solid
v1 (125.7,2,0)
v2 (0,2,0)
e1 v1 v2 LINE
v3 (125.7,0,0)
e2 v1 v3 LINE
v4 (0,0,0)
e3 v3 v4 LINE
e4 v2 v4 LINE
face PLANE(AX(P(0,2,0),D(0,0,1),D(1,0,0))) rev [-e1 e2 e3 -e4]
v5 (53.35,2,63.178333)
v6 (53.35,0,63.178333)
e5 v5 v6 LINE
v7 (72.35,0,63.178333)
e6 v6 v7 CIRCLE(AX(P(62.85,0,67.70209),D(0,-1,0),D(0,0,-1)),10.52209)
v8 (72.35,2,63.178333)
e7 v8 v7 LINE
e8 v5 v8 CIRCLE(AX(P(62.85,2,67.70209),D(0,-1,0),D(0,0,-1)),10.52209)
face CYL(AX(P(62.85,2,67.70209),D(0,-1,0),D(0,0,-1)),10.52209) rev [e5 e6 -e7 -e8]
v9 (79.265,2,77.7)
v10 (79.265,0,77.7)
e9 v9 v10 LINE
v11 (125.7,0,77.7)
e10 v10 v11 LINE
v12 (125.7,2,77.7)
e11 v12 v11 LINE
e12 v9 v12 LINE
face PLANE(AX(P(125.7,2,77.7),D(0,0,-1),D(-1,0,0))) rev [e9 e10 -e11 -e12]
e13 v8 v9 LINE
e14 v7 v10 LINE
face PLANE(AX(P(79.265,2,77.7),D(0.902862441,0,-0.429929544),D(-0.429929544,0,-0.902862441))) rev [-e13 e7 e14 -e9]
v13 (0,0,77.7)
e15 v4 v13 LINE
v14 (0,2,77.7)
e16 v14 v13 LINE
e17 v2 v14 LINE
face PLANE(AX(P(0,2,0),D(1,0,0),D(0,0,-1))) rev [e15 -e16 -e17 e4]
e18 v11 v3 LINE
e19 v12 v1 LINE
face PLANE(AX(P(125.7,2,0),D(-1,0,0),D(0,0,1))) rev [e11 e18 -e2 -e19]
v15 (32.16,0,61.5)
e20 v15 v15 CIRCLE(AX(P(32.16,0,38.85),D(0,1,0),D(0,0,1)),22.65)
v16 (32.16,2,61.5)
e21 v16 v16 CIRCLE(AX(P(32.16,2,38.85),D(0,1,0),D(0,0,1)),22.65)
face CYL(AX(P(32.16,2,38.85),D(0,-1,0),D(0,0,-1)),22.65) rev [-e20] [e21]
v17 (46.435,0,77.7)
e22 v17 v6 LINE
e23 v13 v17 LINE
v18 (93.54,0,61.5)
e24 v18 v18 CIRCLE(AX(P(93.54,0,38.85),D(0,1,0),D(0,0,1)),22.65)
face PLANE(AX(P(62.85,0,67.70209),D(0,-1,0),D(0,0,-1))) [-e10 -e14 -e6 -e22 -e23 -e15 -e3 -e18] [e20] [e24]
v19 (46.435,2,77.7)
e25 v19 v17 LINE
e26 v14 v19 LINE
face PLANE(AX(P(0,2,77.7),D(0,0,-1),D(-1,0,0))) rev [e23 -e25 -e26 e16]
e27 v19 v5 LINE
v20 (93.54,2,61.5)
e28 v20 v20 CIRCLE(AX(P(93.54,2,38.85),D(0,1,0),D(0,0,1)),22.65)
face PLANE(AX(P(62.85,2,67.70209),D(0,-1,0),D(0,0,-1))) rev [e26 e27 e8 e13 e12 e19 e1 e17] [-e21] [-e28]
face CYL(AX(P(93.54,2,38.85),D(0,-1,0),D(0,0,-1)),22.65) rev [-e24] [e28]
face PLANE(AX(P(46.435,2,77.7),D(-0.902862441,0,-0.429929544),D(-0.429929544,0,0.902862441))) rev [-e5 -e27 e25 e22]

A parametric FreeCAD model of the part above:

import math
import FreeCAD as App
import Part
import Sketcher
from FreeCAD import Vector
Q = App.Units.Quantity

doc = App.newDocument("Part")
params = doc.addObject("Spreadsheet::Sheet", "Params")
for row, (alias, value) in enumerate([
    ("sketch1_diameter", "45.3 mm"),
    ("sketch1_width", "125.7 mm"),
    ("sketch1_height", "77.7 mm"),
    ("pad1_length", "2 mm"),
], start=1):
    params.set(f"A{row}", alias)
    params.set(f"B{row}", "=" + value)
    params.setAlias(f"B{row}", alias)

body = doc.addObject("PartDesign::Body", "Body")

# Sketch on XZ plane
sketch1 = body.newObject("Sketcher::SketchObject", "Sketch")
sketch1.AttachmentSupport = (doc.getObject("XZ_Plane"), [""])
sketch1.MapMode = "FlatFace"
sketch1.addGeometry([
    Part.LineSegment(Vector(0, 78, 0), Vector(46, 78, 0)),  # 0
    Part.LineSegment(Vector(46, 78, 0), Vector(53, 63, 0)),  # 1
    Part.ArcOfCircle(Part.Circle(Vector(63, 68, 0), Vector(0, 0, 1), 11), math.radians(-155), math.radians(-25)),  # 2
    Part.LineSegment(Vector(72, 63, 0), Vector(79, 78, 0)),  # 3
    Part.LineSegment(Vector(79, 78, 0), Vector(126, 78, 0)),  # 4
    Part.LineSegment(Vector(126, 78, 0), Vector(126, 0, 0)),  # 5
    Part.LineSegment(Vector(126, 0, 0), Vector(0, 0, 0)),  # 6
    Part.LineSegment(Vector(0, 0, 0), Vector(0, 78, 0)),  # 7
    Part.Circle(Vector(32, 39, 0), Vector(0, 0, 1), 23),  # 8
    Part.Circle(Vector(94, 39, 0), Vector(0, 0, 1), 23),  # 9
], False)
sketch1.addConstraint([
    Sketcher.Constraint("Coincident", 0, 2, 1, 1),
    Sketcher.Constraint("Tangent", 1, 2, 2, 1),
    Sketcher.Constraint("Tangent", 2, 2, 3, 1),
    Sketcher.Constraint("Coincident", 3, 2, 4, 1),
    Sketcher.Constraint("Coincident", 4, 2, 5, 1),
    Sketcher.Constraint("Coincident", 5, 2, 6, 1),
    Sketcher.Constraint("Coincident", 6, 2, 7, 1),
    Sketcher.Constraint("Coincident", 7, 2, 0, 1),
    Sketcher.Constraint("Horizontal", 0),
    Sketcher.Constraint("Horizontal", 4),
    Sketcher.Constraint("Vertical", 5),
    Sketcher.Constraint("Horizontal", 6),
    Sketcher.Constraint("Vertical", 7),
    Sketcher.Constraint("Coincident", 6, 2, -1, 1),
    Sketcher.Constraint("Equal", 8, 9),
    Sketcher.Constraint("Horizontal", 8, 3, 9, 3),
    Sketcher.Constraint("Horizontal", 1, 2, 2, 2),
    Sketcher.Constraint("Horizontal", 0, 2, 3, 2),
    Sketcher.Constraint("Equal", 0, 4),
    Sketcher.Constraint("Diameter", 8, Q("45.3 mm")),
    Sketcher.Constraint("DistanceX", 6, 2, 6, 1, Q("125.7 mm")),
    Sketcher.Constraint("DistanceY", 5, 2, 5, 1, Q("77.7 mm")),
    Sketcher.Constraint("DistanceX", 1, 2, 2, 2, Q("19 mm")),
    Sketcher.Constraint("DistanceX", 0, 1, 0, 2, Q("46.435 mm")),
    Sketcher.Constraint("DistanceX", -1, 1, 8, 3, Q("32.16 mm")),
    Sketcher.Constraint("DistanceY", -1, 1, 8, 3, Q("38.85 mm")),
    Sketcher.Constraint("DistanceX", -1, 1, 9, 3, Q("93.54 mm")),
    Sketcher.Constraint("Radius", 2, Q("10.52209 mm")),
])
sketch1.setExpression("Constraints[19]", "Params.sketch1_diameter")
sketch1.setExpression("Constraints[20]", "Params.sketch1_width")
sketch1.setExpression("Constraints[21]", "Params.sketch1_height")
pad1 = body.newObject("PartDesign::Pad", "Pad")
pad1.Profile = sketch1
pad1.setExpression("Length", "Params.pad1_length")
pad1.Reversed = True

doc.recompute()
